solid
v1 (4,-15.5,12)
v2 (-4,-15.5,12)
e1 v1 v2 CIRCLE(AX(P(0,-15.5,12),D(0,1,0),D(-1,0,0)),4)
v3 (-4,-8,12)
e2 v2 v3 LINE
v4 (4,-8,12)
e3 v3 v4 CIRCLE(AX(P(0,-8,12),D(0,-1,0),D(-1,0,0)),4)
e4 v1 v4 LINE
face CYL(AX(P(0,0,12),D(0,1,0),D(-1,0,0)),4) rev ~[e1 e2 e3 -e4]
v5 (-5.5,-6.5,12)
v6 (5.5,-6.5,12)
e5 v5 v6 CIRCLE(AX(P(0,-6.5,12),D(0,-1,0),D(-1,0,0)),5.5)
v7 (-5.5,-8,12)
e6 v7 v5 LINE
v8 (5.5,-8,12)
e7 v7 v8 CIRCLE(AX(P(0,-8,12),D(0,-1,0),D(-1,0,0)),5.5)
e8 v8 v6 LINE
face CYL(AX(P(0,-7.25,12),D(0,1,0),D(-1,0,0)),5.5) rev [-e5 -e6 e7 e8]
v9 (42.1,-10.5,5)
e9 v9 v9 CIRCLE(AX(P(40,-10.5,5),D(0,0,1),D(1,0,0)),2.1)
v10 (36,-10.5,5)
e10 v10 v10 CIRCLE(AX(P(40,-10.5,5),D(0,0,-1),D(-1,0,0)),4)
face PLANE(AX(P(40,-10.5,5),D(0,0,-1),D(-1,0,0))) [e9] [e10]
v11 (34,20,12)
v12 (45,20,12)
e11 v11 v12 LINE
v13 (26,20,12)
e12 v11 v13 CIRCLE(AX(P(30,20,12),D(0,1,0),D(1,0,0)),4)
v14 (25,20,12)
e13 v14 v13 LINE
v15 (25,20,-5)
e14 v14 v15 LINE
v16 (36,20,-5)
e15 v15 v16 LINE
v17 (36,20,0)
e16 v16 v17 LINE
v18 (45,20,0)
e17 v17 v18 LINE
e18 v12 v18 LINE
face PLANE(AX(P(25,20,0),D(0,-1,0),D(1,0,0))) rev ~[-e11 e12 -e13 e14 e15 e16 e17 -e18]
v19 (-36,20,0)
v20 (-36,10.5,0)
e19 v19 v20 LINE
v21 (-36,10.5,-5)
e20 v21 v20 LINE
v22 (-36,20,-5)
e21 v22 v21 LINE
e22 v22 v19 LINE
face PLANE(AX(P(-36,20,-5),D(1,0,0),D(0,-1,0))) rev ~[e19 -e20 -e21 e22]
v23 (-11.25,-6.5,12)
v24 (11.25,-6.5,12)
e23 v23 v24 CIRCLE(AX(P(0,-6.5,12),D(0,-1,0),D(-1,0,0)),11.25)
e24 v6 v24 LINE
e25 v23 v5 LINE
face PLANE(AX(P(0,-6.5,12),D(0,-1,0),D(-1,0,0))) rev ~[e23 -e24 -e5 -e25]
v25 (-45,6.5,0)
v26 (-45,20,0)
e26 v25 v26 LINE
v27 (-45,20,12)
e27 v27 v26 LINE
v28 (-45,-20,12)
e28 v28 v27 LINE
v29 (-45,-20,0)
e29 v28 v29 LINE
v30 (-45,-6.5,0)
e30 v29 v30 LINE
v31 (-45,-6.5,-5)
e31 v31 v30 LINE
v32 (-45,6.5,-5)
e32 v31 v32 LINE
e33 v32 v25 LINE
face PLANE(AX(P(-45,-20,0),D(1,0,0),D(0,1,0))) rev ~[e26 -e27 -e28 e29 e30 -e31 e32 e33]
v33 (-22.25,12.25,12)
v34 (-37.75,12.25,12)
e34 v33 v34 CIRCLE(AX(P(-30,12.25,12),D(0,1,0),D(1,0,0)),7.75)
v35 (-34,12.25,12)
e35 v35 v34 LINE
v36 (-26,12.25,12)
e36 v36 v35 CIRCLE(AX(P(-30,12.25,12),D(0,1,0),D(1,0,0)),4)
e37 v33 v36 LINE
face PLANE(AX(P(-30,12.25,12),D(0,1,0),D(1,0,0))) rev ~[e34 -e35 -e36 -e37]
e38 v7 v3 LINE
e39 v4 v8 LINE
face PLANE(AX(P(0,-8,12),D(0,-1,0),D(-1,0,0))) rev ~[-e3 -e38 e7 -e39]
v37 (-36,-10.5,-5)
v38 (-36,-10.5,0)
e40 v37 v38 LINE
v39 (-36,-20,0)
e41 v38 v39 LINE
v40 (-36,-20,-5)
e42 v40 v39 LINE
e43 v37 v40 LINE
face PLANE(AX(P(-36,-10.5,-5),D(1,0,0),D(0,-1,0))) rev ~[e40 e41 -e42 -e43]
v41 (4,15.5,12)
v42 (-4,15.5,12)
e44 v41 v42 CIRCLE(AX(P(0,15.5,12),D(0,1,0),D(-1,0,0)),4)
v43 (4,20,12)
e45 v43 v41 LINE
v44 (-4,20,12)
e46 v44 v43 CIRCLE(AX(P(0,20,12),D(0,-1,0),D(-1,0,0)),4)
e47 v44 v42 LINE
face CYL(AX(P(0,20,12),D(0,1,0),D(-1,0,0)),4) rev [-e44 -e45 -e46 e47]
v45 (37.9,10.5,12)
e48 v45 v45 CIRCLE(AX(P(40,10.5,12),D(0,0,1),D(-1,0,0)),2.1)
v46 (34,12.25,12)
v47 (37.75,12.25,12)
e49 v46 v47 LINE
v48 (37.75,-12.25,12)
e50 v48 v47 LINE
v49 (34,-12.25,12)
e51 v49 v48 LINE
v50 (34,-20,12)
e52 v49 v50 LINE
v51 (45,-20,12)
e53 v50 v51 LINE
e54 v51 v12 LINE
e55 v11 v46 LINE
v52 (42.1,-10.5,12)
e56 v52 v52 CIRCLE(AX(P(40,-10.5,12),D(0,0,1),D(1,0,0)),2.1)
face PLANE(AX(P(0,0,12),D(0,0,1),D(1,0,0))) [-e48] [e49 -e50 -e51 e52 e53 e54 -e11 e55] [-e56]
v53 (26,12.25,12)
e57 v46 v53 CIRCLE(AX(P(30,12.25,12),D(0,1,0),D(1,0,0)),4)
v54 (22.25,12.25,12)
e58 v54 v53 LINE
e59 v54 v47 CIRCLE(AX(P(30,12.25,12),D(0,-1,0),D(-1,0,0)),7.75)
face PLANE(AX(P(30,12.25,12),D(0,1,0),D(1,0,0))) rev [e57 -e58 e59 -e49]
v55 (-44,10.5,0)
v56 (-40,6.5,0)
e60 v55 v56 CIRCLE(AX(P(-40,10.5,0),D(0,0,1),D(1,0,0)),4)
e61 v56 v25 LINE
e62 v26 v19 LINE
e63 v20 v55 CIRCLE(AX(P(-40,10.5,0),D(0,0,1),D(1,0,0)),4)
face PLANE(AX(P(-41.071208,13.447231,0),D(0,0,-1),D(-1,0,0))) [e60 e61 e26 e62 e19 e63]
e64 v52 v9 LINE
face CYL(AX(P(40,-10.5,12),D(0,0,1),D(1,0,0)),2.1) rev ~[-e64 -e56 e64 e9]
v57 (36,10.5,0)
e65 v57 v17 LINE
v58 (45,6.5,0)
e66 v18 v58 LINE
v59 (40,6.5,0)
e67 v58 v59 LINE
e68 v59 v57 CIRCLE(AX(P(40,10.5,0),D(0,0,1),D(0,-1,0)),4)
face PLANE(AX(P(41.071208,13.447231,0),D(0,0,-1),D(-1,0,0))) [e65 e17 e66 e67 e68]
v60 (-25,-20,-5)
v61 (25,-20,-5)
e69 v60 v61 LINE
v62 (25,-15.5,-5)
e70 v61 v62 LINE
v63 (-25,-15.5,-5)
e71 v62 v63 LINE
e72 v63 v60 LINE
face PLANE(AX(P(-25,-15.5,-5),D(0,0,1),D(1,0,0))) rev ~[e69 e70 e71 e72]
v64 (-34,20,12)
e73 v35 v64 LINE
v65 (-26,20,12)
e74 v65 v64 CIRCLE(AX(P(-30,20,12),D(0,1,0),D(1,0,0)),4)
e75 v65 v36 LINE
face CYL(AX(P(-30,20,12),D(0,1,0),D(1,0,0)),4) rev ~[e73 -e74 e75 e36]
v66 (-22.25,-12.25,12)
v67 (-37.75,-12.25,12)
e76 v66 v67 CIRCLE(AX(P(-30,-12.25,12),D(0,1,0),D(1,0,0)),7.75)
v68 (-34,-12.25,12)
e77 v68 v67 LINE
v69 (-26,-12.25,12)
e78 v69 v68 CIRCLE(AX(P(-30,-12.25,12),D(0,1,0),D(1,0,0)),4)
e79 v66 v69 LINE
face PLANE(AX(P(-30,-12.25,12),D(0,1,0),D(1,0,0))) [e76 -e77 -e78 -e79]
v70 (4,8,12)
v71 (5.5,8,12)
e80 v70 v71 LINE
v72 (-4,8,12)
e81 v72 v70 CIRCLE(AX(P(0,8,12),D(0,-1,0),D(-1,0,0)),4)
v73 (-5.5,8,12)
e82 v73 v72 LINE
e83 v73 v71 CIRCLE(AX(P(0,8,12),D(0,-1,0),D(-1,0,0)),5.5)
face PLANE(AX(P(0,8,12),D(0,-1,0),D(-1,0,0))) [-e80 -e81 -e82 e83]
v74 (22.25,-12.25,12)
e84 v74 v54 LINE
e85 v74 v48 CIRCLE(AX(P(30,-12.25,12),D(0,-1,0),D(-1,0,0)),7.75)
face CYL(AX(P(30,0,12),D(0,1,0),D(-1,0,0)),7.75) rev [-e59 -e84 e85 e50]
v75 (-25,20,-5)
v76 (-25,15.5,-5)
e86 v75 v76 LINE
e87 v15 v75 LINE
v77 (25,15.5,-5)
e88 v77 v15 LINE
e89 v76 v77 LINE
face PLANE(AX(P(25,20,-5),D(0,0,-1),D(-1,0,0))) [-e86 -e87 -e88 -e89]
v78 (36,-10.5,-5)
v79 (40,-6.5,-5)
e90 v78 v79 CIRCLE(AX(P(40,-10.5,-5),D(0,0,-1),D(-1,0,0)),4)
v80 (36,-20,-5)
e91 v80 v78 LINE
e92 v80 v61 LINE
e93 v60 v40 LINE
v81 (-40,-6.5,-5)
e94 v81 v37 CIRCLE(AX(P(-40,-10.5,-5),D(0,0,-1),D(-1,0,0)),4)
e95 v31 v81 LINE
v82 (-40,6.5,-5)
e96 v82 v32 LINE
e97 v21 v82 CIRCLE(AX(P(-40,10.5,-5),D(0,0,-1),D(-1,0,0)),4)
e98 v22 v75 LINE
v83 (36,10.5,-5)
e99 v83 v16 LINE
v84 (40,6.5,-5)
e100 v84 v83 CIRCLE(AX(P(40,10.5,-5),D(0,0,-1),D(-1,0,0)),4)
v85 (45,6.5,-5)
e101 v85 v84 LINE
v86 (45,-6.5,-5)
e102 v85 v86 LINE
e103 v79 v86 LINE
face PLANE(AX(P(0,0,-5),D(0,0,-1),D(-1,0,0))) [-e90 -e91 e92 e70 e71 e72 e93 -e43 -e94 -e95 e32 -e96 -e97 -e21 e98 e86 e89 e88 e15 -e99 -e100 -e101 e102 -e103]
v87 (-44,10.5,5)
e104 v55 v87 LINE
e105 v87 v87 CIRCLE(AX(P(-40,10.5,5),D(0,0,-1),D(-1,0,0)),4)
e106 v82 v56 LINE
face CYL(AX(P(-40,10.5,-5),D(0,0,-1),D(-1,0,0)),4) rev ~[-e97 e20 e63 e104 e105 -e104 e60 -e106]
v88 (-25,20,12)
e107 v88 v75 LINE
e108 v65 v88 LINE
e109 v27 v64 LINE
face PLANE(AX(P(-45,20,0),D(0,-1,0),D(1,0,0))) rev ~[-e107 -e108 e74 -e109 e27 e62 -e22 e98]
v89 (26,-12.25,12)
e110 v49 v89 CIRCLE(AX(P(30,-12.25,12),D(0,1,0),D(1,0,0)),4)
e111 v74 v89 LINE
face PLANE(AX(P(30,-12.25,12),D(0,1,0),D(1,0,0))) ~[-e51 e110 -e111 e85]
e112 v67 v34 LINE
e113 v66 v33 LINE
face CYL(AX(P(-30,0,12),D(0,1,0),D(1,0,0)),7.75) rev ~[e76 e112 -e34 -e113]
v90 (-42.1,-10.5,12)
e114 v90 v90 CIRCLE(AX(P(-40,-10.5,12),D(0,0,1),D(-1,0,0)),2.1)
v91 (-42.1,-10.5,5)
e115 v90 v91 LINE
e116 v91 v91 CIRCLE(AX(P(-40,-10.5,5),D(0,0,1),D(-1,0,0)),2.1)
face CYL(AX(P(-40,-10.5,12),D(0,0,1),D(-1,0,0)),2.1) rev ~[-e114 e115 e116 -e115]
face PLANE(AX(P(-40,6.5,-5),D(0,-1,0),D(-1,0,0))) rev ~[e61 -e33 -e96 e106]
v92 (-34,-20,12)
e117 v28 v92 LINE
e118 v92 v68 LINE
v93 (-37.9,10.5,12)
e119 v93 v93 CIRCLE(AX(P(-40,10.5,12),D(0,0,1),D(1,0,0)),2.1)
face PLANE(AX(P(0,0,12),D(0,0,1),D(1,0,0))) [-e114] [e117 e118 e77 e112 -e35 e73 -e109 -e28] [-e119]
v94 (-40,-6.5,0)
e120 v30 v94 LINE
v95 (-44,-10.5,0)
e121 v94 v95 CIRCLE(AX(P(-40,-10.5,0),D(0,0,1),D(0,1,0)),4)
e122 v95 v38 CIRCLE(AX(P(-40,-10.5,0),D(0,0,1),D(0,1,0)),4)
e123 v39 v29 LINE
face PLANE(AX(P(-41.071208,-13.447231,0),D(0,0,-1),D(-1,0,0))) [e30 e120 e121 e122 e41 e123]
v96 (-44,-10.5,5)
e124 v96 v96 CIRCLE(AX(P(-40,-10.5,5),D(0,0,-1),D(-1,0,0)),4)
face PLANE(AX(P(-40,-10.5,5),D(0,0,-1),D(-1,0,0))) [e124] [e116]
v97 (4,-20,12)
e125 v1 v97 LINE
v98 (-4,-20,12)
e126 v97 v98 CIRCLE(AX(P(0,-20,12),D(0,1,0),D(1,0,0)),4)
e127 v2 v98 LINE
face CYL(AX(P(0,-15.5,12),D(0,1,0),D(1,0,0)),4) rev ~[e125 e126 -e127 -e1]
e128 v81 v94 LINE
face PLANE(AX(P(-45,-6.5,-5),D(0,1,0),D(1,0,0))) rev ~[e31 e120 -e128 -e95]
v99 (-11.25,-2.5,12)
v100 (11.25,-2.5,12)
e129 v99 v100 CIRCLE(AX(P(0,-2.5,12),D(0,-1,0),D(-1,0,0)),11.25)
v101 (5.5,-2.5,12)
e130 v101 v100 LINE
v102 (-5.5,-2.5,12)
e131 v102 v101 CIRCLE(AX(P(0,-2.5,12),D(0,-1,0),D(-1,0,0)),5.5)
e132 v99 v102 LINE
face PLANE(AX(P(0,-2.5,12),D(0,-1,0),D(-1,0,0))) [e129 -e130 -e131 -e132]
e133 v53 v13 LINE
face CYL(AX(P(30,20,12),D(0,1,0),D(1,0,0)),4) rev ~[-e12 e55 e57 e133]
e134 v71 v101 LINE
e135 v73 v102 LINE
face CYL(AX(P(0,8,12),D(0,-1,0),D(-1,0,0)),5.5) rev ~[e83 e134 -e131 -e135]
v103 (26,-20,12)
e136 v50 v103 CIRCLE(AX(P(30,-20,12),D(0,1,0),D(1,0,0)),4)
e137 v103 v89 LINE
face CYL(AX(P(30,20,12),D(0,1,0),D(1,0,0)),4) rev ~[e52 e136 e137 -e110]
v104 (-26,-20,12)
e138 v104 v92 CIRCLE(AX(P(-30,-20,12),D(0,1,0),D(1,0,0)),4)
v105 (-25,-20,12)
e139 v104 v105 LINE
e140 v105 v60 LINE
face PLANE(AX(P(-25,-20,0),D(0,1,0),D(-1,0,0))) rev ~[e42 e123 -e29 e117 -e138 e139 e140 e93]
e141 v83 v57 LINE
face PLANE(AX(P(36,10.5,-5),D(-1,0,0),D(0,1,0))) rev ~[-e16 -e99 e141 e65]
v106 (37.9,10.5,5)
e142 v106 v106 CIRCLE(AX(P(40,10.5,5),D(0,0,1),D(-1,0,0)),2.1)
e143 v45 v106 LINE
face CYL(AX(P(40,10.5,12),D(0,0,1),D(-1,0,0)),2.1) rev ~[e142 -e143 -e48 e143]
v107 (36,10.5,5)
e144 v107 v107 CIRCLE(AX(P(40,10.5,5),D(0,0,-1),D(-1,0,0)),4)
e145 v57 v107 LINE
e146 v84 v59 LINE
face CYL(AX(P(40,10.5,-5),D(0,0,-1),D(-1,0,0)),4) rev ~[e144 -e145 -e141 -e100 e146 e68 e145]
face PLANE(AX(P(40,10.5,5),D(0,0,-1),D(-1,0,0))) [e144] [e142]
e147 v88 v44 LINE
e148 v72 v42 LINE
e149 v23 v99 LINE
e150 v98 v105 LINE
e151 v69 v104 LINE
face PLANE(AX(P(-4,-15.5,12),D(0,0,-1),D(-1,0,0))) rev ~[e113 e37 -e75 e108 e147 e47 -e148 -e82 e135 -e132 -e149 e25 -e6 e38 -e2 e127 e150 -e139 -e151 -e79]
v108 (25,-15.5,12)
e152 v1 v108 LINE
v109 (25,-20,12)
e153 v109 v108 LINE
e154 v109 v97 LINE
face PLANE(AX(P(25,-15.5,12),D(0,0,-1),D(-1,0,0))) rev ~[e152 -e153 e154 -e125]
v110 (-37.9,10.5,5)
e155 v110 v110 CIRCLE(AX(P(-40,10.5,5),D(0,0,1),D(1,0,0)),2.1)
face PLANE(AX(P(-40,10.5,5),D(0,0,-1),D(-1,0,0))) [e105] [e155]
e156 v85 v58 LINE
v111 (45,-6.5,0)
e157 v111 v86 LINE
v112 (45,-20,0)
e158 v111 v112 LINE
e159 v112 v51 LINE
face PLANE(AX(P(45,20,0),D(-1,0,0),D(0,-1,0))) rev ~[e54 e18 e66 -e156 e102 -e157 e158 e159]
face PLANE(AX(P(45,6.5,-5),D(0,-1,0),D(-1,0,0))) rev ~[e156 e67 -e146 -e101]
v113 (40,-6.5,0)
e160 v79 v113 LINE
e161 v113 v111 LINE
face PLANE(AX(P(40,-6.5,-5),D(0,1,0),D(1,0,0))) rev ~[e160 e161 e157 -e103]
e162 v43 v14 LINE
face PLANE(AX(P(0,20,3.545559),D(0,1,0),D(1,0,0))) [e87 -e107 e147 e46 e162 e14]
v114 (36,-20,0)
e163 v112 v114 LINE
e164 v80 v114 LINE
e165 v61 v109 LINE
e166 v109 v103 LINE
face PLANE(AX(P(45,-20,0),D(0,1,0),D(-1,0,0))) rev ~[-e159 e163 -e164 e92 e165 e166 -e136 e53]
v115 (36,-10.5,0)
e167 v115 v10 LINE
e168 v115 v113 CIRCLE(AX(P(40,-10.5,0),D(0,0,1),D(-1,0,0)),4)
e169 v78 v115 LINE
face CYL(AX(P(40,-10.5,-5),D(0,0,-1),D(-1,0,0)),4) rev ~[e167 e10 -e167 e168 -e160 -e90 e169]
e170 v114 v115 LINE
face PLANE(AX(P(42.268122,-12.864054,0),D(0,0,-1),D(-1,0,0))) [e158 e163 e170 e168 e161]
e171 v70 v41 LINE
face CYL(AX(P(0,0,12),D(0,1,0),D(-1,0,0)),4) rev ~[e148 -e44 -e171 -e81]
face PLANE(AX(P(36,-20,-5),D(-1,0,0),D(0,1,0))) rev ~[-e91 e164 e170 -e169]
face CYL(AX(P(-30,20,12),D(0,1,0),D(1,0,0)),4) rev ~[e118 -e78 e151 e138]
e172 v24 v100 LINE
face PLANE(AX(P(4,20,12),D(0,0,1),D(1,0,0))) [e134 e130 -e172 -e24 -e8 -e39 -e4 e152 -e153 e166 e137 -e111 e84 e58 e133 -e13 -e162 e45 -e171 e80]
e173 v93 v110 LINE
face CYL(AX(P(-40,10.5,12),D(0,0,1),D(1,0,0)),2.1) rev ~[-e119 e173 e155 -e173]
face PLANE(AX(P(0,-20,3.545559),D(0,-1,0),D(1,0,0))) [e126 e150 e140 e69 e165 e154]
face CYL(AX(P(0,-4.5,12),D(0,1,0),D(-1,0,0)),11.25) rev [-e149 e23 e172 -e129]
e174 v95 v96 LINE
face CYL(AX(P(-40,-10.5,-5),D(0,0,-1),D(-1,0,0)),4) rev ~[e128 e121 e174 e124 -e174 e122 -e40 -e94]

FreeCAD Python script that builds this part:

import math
import FreeCAD as App
import Part
import Sketcher
Q = App.Units.Quantity


def add_polygon(sketch, points):
    """Adds a closed chain of lines whose ends are joined by coincident constraints."""
    first, n = sketch.GeometryCount, len(points)
    for a, b in zip(points, points[1:] + points[:1]):
        sketch.addGeometry(Part.LineSegment(App.Vector(*a, 0), App.Vector(*b, 0)), False)
    for i in range(n):
        sketch.addConstraint(Sketcher.Constraint("Coincident", first + i, 2, first + (i + 1) % n, 1))

doc = App.newDocument("Part")
body = doc.addObject("PartDesign::Body", "Body")

sketch1 = doc.addObject("Sketcher::SketchObject", "Sketch")
body.addObject(sketch1)
sketch1.AttachmentSupport = (doc.XY_Plane, [""])
sketch1.MapMode = "FlatFace"
add_polygon(sketch1, [(-45, 20), (-45, -20), (45, -20), (45, 20)])
sketch1.addConstraint(Sketcher.Constraint("Vertical", 0))
sketch1.addConstraint(Sketcher.Constraint("Horizontal", 1))
sketch1.addConstraint(Sketcher.Constraint("Vertical", 2))
sketch1.addConstraint(Sketcher.Constraint("Horizontal", 3))
sketch1.addConstraint(Sketcher.Constraint("Symmetric", 0, 2, 2, 2, -1, 1))
sketch1.addConstraint(Sketcher.Constraint("DistanceX", 1, 1, 1, 2, Q("90 mm")))
sketch1.addConstraint(Sketcher.Constraint("DistanceY", 0, 2, 0, 1, Q("40 mm")))
pad1 = doc.addObject("PartDesign::Pad", "Pad")
body.addObject(pad1)
pad1.Profile = sketch1
pad1.Length = 12

sketch2 = doc.addObject("Sketcher::SketchObject", "Sketch001")
body.addObject(sketch2)
sketch2.AttachmentSupport = (doc.XZ_Plane, [""])
sketch2.MapMode = "FlatFace"
sketch2.AttachmentOffset = App.Placement(App.Vector(0, 0, -20), App.Rotation())
sketch2.addGeometry(Part.Circle(App.Vector(-30, 12, 0), App.Vector(0, 0, 1), 4), False)
sketch2.addGeometry(Part.Circle(App.Vector(30, 12, 0), App.Vector(0, 0, 1), 4), False)
sketch2.addConstraint(Sketcher.Constraint("Equal", 0, 1))
sketch2.addConstraint(Sketcher.Constraint("Symmetric", 0, 3, 1, 3, -2))
sketch2.addConstraint(Sketcher.Constraint("Diameter", 0, Q("8 mm")))
sketch2.addConstraint(Sketcher.Constraint("DistanceX", 0, 3, -1, 1, Q("30 mm")))
sketch2.addConstraint(Sketcher.Constraint("DistanceY", -1, 1, 0, 3, Q("12 mm")))
pocket1 = doc.addObject("PartDesign::Pocket", "Pocket")
body.addObject(pocket1)
pocket1.Profile = sketch2
pocket1.Type = "ThroughAll"
pocket1.Reversed = True

sketch3 = doc.addObject("Sketcher::SketchObject", "Sketch002")
body.addObject(sketch3)
sketch3.AttachmentSupport = (doc.XZ_Plane, [""])
sketch3.MapMode = "FlatFace"
sketch3.addGeometry(Part.Circle(App.Vector(-30, 12, 0), App.Vector(0, 0, 1), 7.75), False)
sketch3.addConstraint(Sketcher.Constraint("Diameter", 0, Q("15.5 mm")))
sketch3.addConstraint(Sketcher.Constraint("DistanceX", 0, 3, -1, 1, Q("30 mm")))
sketch3.addConstraint(Sketcher.Constraint("DistanceY", -1, 1, 0, 3, Q("12 mm")))
pocket2 = doc.addObject("PartDesign::Pocket", "Pocket001")
body.addObject(pocket2)
pocket2.Profile = sketch3
pocket2.Length = 24.5
pocket2.Midplane = True

sketch4 = doc.addObject("Sketcher::SketchObject", "Sketch003")
body.addObject(sketch4)
sketch4.AttachmentSupport = (doc.XY_Plane, [""])
sketch4.MapMode = "FlatFace"
sketch4.AttachmentOffset = App.Placement(App.Vector(0, 0, 12), App.Rotation())
add_polygon(sketch4, [(-25, -15.5), (-25, -30.228129), (25, -30.228129), (25, -15.5)])
add_polygon(sketch4, [(-25, 26.100162), (-25, 15.5), (25, 15.5), (25, 26.100162)])
sketch4.addConstraint(Sketcher.Constraint("Vertical", 0))
sketch4.addConstraint(Sketcher.Constraint("Horizontal", 1))
sketch4.addConstraint(Sketcher.Constraint("Vertical", 2))
sketch4.addConstraint(Sketcher.Constraint("Horizontal", 3))
sketch4.addConstraint(Sketcher.Constraint("Vertical", 4))
sketch4.addConstraint(Sketcher.Constraint("Horizontal", 5))
sketch4.addConstraint(Sketcher.Constraint("Vertical", 6))
sketch4.addConstraint(Sketcher.Constraint("Horizontal", 7))
sketch4.addConstraint(Sketcher.Constraint("Symmetric", 2, 2, 4, 2, -1, 1))
sketch4.addConstraint(Sketcher.Constraint("Vertical", 3, 2, 4, 2))
sketch4.addConstraint(Sketcher.Constraint("Vertical", 2, 2, 5, 2))
sketch4.addConstraint(Sketcher.Constraint("DistanceX", 1, 1, 1, 2, Q("50 mm")))
sketch4.addConstraint(Sketcher.Constraint("DistanceY", 3, 2, 4, 2, Q("31 mm")))
sketch4.addConstraint(Sketcher.Constraint("DistanceY", 0, 2, 0, 1, Q("14.728129 mm")))
sketch4.addConstraint(Sketcher.Constraint("DistanceY", 4, 2, 4, 1, Q("10.600162 mm")))
pocket3 = doc.addObject("PartDesign::Pocket", "Pocket002")
body.addObject(pocket3)
pocket3.Profile = sketch4
pocket3.Length = 31

sketch5 = doc.addObject("Sketcher::SketchObject", "Sketch004")
body.addObject(sketch5)
sketch5.AttachmentSupport = (doc.XY_Plane, [""])
sketch5.MapMode = "FlatFace"
add_polygon(sketch5, [(25, -15.5), (-25, -15.5), (-25, -20), (-45, -20), (-45, 20), (-25, 20), (-25, 15.5), (25, 15.5), (25, 20), (45, 20), (45, -20), (25, -20)])
sketch5.addConstraint(Sketcher.Constraint("Horizontal", 0))
sketch5.addConstraint(Sketcher.Constraint("Vertical", 1))
sketch5.addConstraint(Sketcher.Constraint("Horizontal", 2))
sketch5.addConstraint(Sketcher.Constraint("Vertical", 3))
sketch5.addConstraint(Sketcher.Constraint("Horizontal", 4))
sketch5.addConstraint(Sketcher.Constraint("Vertical", 5))
sketch5.addConstraint(Sketcher.Constraint("Horizontal", 6))
sketch5.addConstraint(Sketcher.Constraint("Vertical", 7))
sketch5.addConstraint(Sketcher.Constraint("Horizontal", 8))
sketch5.addConstraint(Sketcher.Constraint("Vertical", 9))
sketch5.addConstraint(Sketcher.Constraint("Horizontal", 10))
sketch5.addConstraint(Sketcher.Constraint("Vertical", 11))
sketch5.addConstraint(Sketcher.Constraint("Symmetric", 0, 2, 6, 2, -1, 1))
sketch5.addConstraint(Sketcher.Constraint("Symmetric", 2, 2, 8, 2, -1, 1))
sketch5.addConstraint(Sketcher.Constraint("Symmetric", 4, 2, 10, 2, -1, 1))
sketch5.addConstraint(Sketcher.Constraint("Symmetric", 4, 2, 7, 2, -2))
sketch5.addConstraint(Sketcher.Constraint("DistanceX", 0, 2, 0, 1, Q("50 mm")))
sketch5.addConstraint(Sketcher.Constraint("DistanceX", 2, 2, 2, 1, Q("20 mm")))
sketch5.addConstraint(Sketcher.Constraint("DistanceY", 3, 1, 3, 2, Q("40 mm")))
sketch5.addConstraint(Sketcher.Constraint("DistanceY", 1, 2, 1, 1, Q("4.5 mm")))
pad2 = doc.addObject("PartDesign::Pad", "Pad001")
body.addObject(pad2)
pad2.Profile = sketch5
pad2.Length = 5
pad2.Reversed = True

sketch6 = doc.addObject("Sketcher::SketchObject", "Sketch005")
body.addObject(sketch6)
sketch6.AttachmentSupport = (doc.XY_Plane, [""])
sketch6.MapMode = "FlatFace"
sketch6.AttachmentOffset = App.Placement(App.Vector(0, 0, 12), App.Rotation())
sketch6.addGeometry(Part.Circle(App.Vector(-40, 10.5, 0), App.Vector(0, 0, 1), 2.1), False)
sketch6.addGeometry(Part.Circle(App.Vector(40, 10.5, 0), App.Vector(0, 0, 1), 2.1), False)
sketch6.addGeometry(Part.Circle(App.Vector(40, -10.5, 0), App.Vector(0, 0, 1), 2.1), False)
sketch6.addGeometry(Part.Circle(App.Vector(-40, -10.5, 0), App.Vector(0, 0, 1), 2.1), False)
sketch6.addConstraint(Sketcher.Constraint("Equal", 0, 1))
sketch6.addConstraint(Sketcher.Constraint("Equal", 1, 2))
sketch6.addConstraint(Sketcher.Constraint("Equal", 2, 3))
sketch6.addConstraint(Sketcher.Constraint("Symmetric", 0, 3, 2, 3, -1, 1))
sketch6.addConstraint(Sketcher.Constraint("Symmetric", 1, 3, 3, 3, -1, 1))
sketch6.addConstraint(Sketcher.Constraint("Symmetric", 0, 3, 1, 3, -2))
sketch6.addConstraint(Sketcher.Constraint("Diameter", 0, Q("4.2 mm")))
sketch6.addConstraint(Sketcher.Constraint("DistanceX", 0, 3, -1, 1, Q("40 mm")))
sketch6.addConstraint(Sketcher.Constraint("DistanceY", 2, 3, 1, 3, Q("21 mm")))
pocket4 = doc.addObject("PartDesign::Pocket", "Pocket003")
body.addObject(pocket4)
pocket4.Profile = sketch6
pocket4.Type = "ThroughAll"

sketch7 = doc.addObject("Sketcher::SketchObject", "Sketch006")
body.addObject(sketch7)
sketch7.AttachmentSupport = (doc.XY_Plane, [""])
sketch7.MapMode = "FlatFace"
sketch7.AttachmentOffset = App.Placement(App.Vector(0, 0, -5), App.Rotation())
sketch7.addGeometry(Part.Circle(App.Vector(40, 10.5, 0), App.Vector(0, 0, 1), 4), False)
sketch7.addGeometry(Part.Circle(App.Vector(-40, 10.5, 0), App.Vector(0, 0, 1), 4), False)
sketch7.addGeometry(Part.Circle(App.Vector(-40, -10.5, 0), App.Vector(0, 0, 1), 4), False)
sketch7.addGeometry(Part.Circle(App.Vector(40, -10.5, 0), App.Vector(0, 0, 1), 4), False)
sketch7.addConstraint(Sketcher.Constraint("Equal", 0, 1))
sketch7.addConstraint(Sketcher.Constraint("Equal", 1, 2))
sketch7.addConstraint(Sketcher.Constraint("Equal", 2, 3))
sketch7.addConstraint(Sketcher.Constraint("Symmetric", 0, 3, 2, 3, -1, 1))
sketch7.addConstraint(Sketcher.Constraint("Symmetric", 1, 3, 3, 3, -1, 1))
sketch7.addConstraint(Sketcher.Constraint("Symmetric", 0, 3, 1, 3, -2))
sketch7.addConstraint(Sketcher.Constraint("Diameter", 0, Q("8 mm")))
sketch7.addConstraint(Sketcher.Constraint("DistanceX", -1, 1, 0, 3, Q("40 mm")))
sketch7.addConstraint(Sketcher.Constraint("DistanceY", 2, 3, 1, 3, Q("21 mm")))
pocket5 = doc.addObject("PartDesign::Pocket", "Pocket004")
body.addObject(pocket5)
pocket5.Profile = sketch7
pocket5.Length = 10
pocket5.Reversed = True

sketch8 = doc.addObject("Sketcher::SketchObject", "Sketch007")
body.addObject(sketch8)
sketch8.AttachmentSupport = (doc.XY_Plane, [""])
sketch8.MapMode = "FlatFace"
sketch8.AttachmentOffset = App.Placement(App.Vector(0, 0, -5), App.Rotation())
sketch8.addGeometry(Part.LineSegment(App.Vector(36, 10.5, 0), App.Vector(36, 20, 0)), False)
sketch8.addGeometry(Part.LineSegment(App.Vector(36, 20, 0), App.Vector(45, 20, 0)), False)
sketch8.addGeometry(Part.LineSegment(App.Vector(45, 20, 0), App.Vector(45, 6.5, 0)), False)
sketch8.addGeometry(Part.LineSegment(App.Vector(45, 6.5, 0), App.Vector(40, 6.5, 0)), False)
sketch8.addGeometry(Part.ArcOfCircle(Part.Circle(App.Vector(40, 10.5, 0), App.Vector(0, 0, 1), 4), math.radians(-90), math.radians(180)), False)
sketch8.addGeometry(Part.LineSegment(App.Vector(40, -6.5, 0), App.Vector(50, -6.5, 0)), False)
sketch8.addGeometry(Part.LineSegment(App.Vector(50, -6.5, 0), App.Vector(45, -20, 0)), False)
sketch8.addGeometry(Part.LineSegment(App.Vector(45, -20, 0), App.Vector(36, -20, 0)), False)
sketch8.addGeometry(Part.LineSegment(App.Vector(36, -20, 0), App.Vector(36, -10.5, 0)), False)
sketch8.addGeometry(Part.ArcOfCircle(Part.Circle(App.Vector(40, -10.5, 0), App.Vector(0, 0, 1), 4), math.radians(180), math.radians(450)), False)
sketch8.addGeometry(Part.LineSegment(App.Vector(-45, -20, 0), App.Vector(-45, -6.5, 0)), False)
sketch8.addGeometry(Part.LineSegment(App.Vector(-45, -6.5, 0), App.Vector(-40, -6.5, 0)), False)
sketch8.addGeometry(Part.ArcOfCircle(Part.Circle(App.Vector(-40, -10.5, 0), App.Vector(0, 0, 1), 4), math.radians(90), math.radians(360)), False)
sketch8.addGeometry(Part.LineSegment(App.Vector(-36, -10.5, 0), App.Vector(-36, -20, 0)), False)
sketch8.addGeometry(Part.LineSegment(App.Vector(-36, -20, 0), App.Vector(-45, -20, 0)), False)
sketch8.addGeometry(Part.LineSegment(App.Vector(-40, 6.5, 0), App.Vector(-45, 6.5, 0)), False)
sketch8.addGeometry(Part.LineSegment(App.Vector(-45, 6.5, 0), App.Vector(-45, 20, 0)), False)
sketch8.addGeometry(Part.LineSegment(App.Vector(-45, 20, 0), App.Vector(-36, 20, 0)), False)
sketch8.addGeometry(Part.LineSegment(App.Vector(-36, 20, 0), App.Vector(-36, 10.5, 0)), False)
sketch8.addGeometry(Part.ArcOfCircle(Part.Circle(App.Vector(-40, 10.5, 0), App.Vector(0, 0, 1), 4), math.radians(0), math.radians(270)), False)
sketch8.addConstraint(Sketcher.Constraint("Coincident", 0, 2, 1, 1))
sketch8.addConstraint(Sketcher.Constraint("Coincident", 1, 2, 2, 1))
sketch8.addConstraint(Sketcher.Constraint("Coincident", 2, 2, 3, 1))
sketch8.addConstraint(Sketcher.Constraint("Tangent", 3, 2, 4, 1))
sketch8.addConstraint(Sketcher.Constraint("Tangent", 4, 2, 0, 1))
sketch8.addConstraint(Sketcher.Constraint("Coincident", 5, 2, 6, 1))
sketch8.addConstraint(Sketcher.Constraint("Coincident", 6, 2, 7, 1))
sketch8.addConstraint(Sketcher.Constraint("Coincident", 7, 2, 8, 1))
sketch8.addConstraint(Sketcher.Constraint("Tangent", 8, 2, 9, 1))
sketch8.addConstraint(Sketcher.Constraint("Tangent", 9, 2, 5, 1))
sketch8.addConstraint(Sketcher.Constraint("Coincident", 10, 2, 11, 1))
sketch8.addConstraint(Sketcher.Constraint("Tangent", 11, 2, 12, 1))
sketch8.addConstraint(Sketcher.Constraint("Tangent", 12, 2, 13, 1))
sketch8.addConstraint(Sketcher.Constraint("Coincident", 13, 2, 14, 1))
sketch8.addConstraint(Sketcher.Constraint("Coincident", 14, 2, 10, 1))
sketch8.addConstraint(Sketcher.Constraint("Coincident", 15, 2, 16, 1))
sketch8.addConstraint(Sketcher.Constraint("Coincident", 16, 2, 17, 1))
sketch8.addConstraint(Sketcher.Constraint("Coincident", 17, 2, 18, 1))
sketch8.addConstraint(Sketcher.Constraint("Tangent", 18, 2, 19, 1))
sketch8.addConstraint(Sketcher.Constraint("Tangent", 19, 2, 15, 1))
sketch8.addConstraint(Sketcher.Constraint("Vertical", 0))
sketch8.addConstraint(Sketcher.Constraint("Horizontal", 1))
sketch8.addConstraint(Sketcher.Constraint("Vertical", 2))
sketch8.addConstraint(Sketcher.Constraint("Horizontal", 3))
sketch8.addConstraint(Sketcher.Constraint("Horizontal", 5))
sketch8.addConstraint(Sketcher.Constraint("Horizontal", 7))
sketch8.addConstraint(Sketcher.Constraint("Vertical", 8))
sketch8.addConstraint(Sketcher.Constraint("Vertical", 10))
sketch8.addConstraint(Sketcher.Constraint("Horizontal", 11))
sketch8.addConstraint(Sketcher.Constraint("Vertical", 13))
sketch8.addConstraint(Sketcher.Constraint("Horizontal", 14))
sketch8.addConstraint(Sketcher.Constraint("Horizontal", 15))
sketch8.addConstraint(Sketcher.Constraint("Vertical", 16))
sketch8.addConstraint(Sketcher.Constraint("Horizontal", 17))
sketch8.addConstraint(Sketcher.Constraint("Vertical", 18))
sketch8.addConstraint(Sketcher.Constraint("Equal", 4, 9))
sketch8.addConstraint(Sketcher.Constraint("Equal", 9, 12))
sketch8.addConstraint(Sketcher.Constraint("Equal", 12, 19))
sketch8.addConstraint(Sketcher.Constraint("Symmetric", 4, 3, 12, 3, -1, 1))
sketch8.addConstraint(Sketcher.Constraint("Symmetric", 9, 3, 19, 3, -1, 1))
sketch8.addConstraint(Sketcher.Constraint("Symmetric", 1, 2, 14, 2, -1, 1))
sketch8.addConstraint(Sketcher.Constraint("Symmetric", 6, 2, 16, 2, -1, 1))
sketch8.addConstraint(Sketcher.Constraint("Symmetric", 9, 3, 12, 3, -2))
sketch8.addConstraint(Sketcher.Constraint("Symmetric", 6, 2, 14, 2, -2))
sketch8.addConstraint(Sketcher.Constraint("Radius", 4, Q("4 mm")))
sketch8.addConstraint(Sketcher.Constraint("DistanceX", 1, 1, 1, 2, Q("9 mm")))
sketch8.addConstraint(Sketcher.Constraint("DistanceX", 5, 1, 5, 2, Q("10 mm")))
sketch8.addConstraint(Sketcher.Constraint("DistanceY", 0, 1, 0, 2, Q("9.5 mm")))
sketch8.addConstraint(Sketcher.Constraint("DistanceX", -1, 1, 4, 3, Q("40 mm")))
sketch8.addConstraint(Sketcher.Constraint("DistanceY", -1, 1, 0, 2, Q("20 mm")))
pocket6 = doc.addObject("PartDesign::Pocket", "Pocket005")
body.addObject(pocket6)
pocket6.Profile = sketch8
pocket6.Length = 5
pocket6.Reversed = True
doc.recompute()

mirrored = doc.addObject("PartDesign::Mirrored", "Mirrored")
body.addObject(mirrored)
mirrored.Originals = [pocket2]
mirrored.MirrorPlane = (doc.YZ_Plane, [""])
body.Tip = mirrored

sketch9 = doc.addObject("Sketcher::SketchObject", "Sketch008")
body.addObject(sketch9)
sketch9.AttachmentSupport = (doc.XY_Plane, [""])
sketch9.MapMode = "FlatFace"
sketch9.AttachmentOffset = App.Placement(App.Vector(0, 0, 12), App.Rotation())
add_polygon(sketch9, [(-4, 15.5), (-4, -15.5), (0, -15.5), (0, 15.5)])
sketch9.addConstraint(Sketcher.Constraint("Vertical", 0))
sketch9.addConstraint(Sketcher.Constraint("Horizontal", 1))
sketch9.addConstraint(Sketcher.Constraint("Vertical", 2))
sketch9.addConstraint(Sketcher.Constraint("Horizontal", 3))
sketch9.addConstraint(Sketcher.Constraint("Symmetric", 1, 2, 2, 2, -1, 1))
sketch9.addConstraint(Sketcher.Constraint("DistanceX", 1, 1, 1, 2, Q("4 mm")))
sketch9.addConstraint(Sketcher.Constraint("DistanceY", 0, 2, 0, 1, Q("31 mm")))
groove = doc.addObject("PartDesign::Groove", "Groove")
body.addObject(groove)
groove.Profile = sketch9
groove.ReferenceAxis = (sketch9, ["V_Axis"])
groove.Angle = 360

sketch10 = doc.addObject("Sketcher::SketchObject", "Sketch009")
body.addObject(sketch10)
sketch10.AttachmentSupport = (doc.XY_Plane, [""])
sketch10.MapMode = "FlatFace"
sketch10.AttachmentOffset = App.Placement(App.Vector(0, 0, 12), App.Rotation())
add_polygon(sketch10, [(-5.5, 8), (-5.5, -2.5), (-11.25, -2.5), (-11.25, -6.5), (-5.5, -6.5), (-5.5, -8), (-4, -8), (-4, 8)])
sketch10.addConstraint(Sketcher.Constraint("Vertical", 0))
sketch10.addConstraint(Sketcher.Constraint("Horizontal", 1))
sketch10.addConstraint(Sketcher.Constraint("Vertical", 2))
sketch10.addConstraint(Sketcher.Constraint("Horizontal", 3))
sketch10.addConstraint(Sketcher.Constraint("Vertical", 4))
sketch10.addConstraint(Sketcher.Constraint("Horizontal", 5))
sketch10.addConstraint(Sketcher.Constraint("Vertical", 6))
sketch10.addConstraint(Sketcher.Constraint("Horizontal", 7))
sketch10.addConstraint(Sketcher.Constraint("Symmetric", 4, 2, 7, 2, -1))
sketch10.addConstraint(Sketcher.Constraint("Equal", 7, 4))
sketch10.addConstraint(Sketcher.Constraint("DistanceY", 2, 2, 2, 1, Q("4 mm")))
sketch10.addConstraint(Sketcher.Constraint("DistanceY", 6, 1, 6, 2, Q("16 mm")))
sketch10.addConstraint(Sketcher.Constraint("DistanceX", 5, 1, 5, 2, Q("1.5 mm")))
sketch10.addConstraint(Sketcher.Constraint("DistanceX", 5, 2, -1, 1, Q("4 mm")))
sketch10.addConstraint(Sketcher.Constraint("DistanceX", 1, 2, 1, 1, Q("5.75 mm")))
groove2 = doc.addObject("PartDesign::Groove", "Groove001")
body.addObject(groove2)
groove2.Profile = sketch10
groove2.ReferenceAxis = (sketch10, ["V_Axis"])
groove2.Angle = 360

sketch11 = doc.addObject("Sketcher::SketchObject", "Sketch010")
body.addObject(sketch11)
sketch11.AttachmentSupport = (doc.XZ_Plane, [""])
sketch11.MapMode = "FlatFace"
sketch11.AttachmentOffset = App.Placement(App.Vector(0, 0, -20), App.Rotation())
sketch11.addGeometry(Part.LineSegment(App.Vector(4, 12, 0), App.Vector(25, 12, 0)), False)
sketch11.addGeometry(Part.LineSegment(App.Vector(25, 12, 0), App.Vector(25, -5, 0)), False)
sketch11.addGeometry(Part.LineSegment(App.Vector(25, -5, 0), App.Vector(-25, -5, 0)), False)
sketch11.addGeometry(Part.LineSegment(App.Vector(-25, -5, 0), App.Vector(-25, 12, 0)), False)
sketch11.addGeometry(Part.LineSegment(App.Vector(-25, 12, 0), App.Vector(-4, 12, 0)), False)
sketch11.addGeometry(Part.ArcOfCircle(Part.Circle(App.Vector(0, 12, 0), App.Vector(0, 0, 1), 4), math.radians(180), math.radians(360)), False)
sketch11.addConstraint(Sketcher.Constraint("Coincident", 0, 2, 1, 1))
sketch11.addConstraint(Sketcher.Constraint("Coincident", 1, 2, 2, 1))
sketch11.addConstraint(Sketcher.Constraint("Coincident", 2, 2, 3, 1))
sketch11.addConstraint(Sketcher.Constraint("Coincident", 3, 2, 4, 1))
sketch11.addConstraint(Sketcher.Constraint("Coincident", 4, 2, 5, 1))
sketch11.addConstraint(Sketcher.Constraint("Coincident", 5, 2, 0, 1))
sketch11.addConstraint(Sketcher.Constraint("Horizontal", 0))
sketch11.addConstraint(Sketcher.Constraint("Vertical", 1))
sketch11.addConstraint(Sketcher.Constraint("Horizontal", 2))
sketch11.addConstraint(Sketcher.Constraint("Vertical", 3))
sketch11.addConstraint(Sketcher.Constraint("Horizontal", 4))
sketch11.addConstraint(Sketcher.Constraint("Symmetric", 0, 2, 3, 2, -2))
sketch11.addConstraint(Sketcher.Constraint("PointOnObject", 5, 3, -2))
sketch11.addConstraint(Sketcher.Constraint("Horizontal", 5, 3, 0, 2))
sketch11.addConstraint(Sketcher.Constraint("Radius", 5, Q("4 mm")))
sketch11.addConstraint(Sketcher.Constraint("DistanceX", 0, 1, 0, 2, Q("21 mm")))
sketch11.addConstraint(Sketcher.Constraint("DistanceY", 1, 2, 1, 1, Q("17 mm")))
sketch11.addConstraint(Sketcher.Constraint("DistanceY", -1, 1, 5, 3, Q("12 mm")))
pad3 = doc.addObject("PartDesign::Pad", "Pad002")
body.addObject(pad3)
pad3.Profile = sketch11
pad3.Length = 4.5

sketch12 = doc.addObject("Sketcher::SketchObject", "Sketch011")
body.addObject(sketch12)
sketch12.AttachmentSupport = (doc.XZ_Plane, [""])
sketch12.MapMode = "FlatFace"
sketch12.AttachmentOffset = App.Placement(App.Vector(0, 0, 15.5), App.Rotation())
sketch12.addGeometry(Part.LineSegment(App.Vector(-4, 12, 0), App.Vector(-25, 12, 0)), False)
sketch12.addGeometry(Part.LineSegment(App.Vector(-25, 12, 0), App.Vector(-25, -5, 0)), False)
sketch12.addGeometry(Part.LineSegment(App.Vector(-25, -5, 0), App.Vector(25, -5, 0)), False)
sketch12.addGeometry(Part.LineSegment(App.Vector(25, -5, 0), App.Vector(25, 12, 0)), False)
sketch12.addGeometry(Part.LineSegment(App.Vector(25, 12, 0), App.Vector(4, 12, 0)), False)
sketch12.addGeometry(Part.ArcOfCircle(Part.Circle(App.Vector(0, 12, 0), App.Vector(0, 0, 1), 4), math.radians(180), math.radians(360)), False)
sketch12.addConstraint(Sketcher.Constraint("Coincident", 0, 2, 1, 1))
sketch12.addConstraint(Sketcher.Constraint("Coincident", 1, 2, 2, 1))
sketch12.addConstraint(Sketcher.Constraint("Coincident", 2, 2, 3, 1))
sketch12.addConstraint(Sketcher.Constraint("Coincident", 3, 2, 4, 1))
sketch12.addConstraint(Sketcher.Constraint("Coincident", 4, 2, 5, 2))
sketch12.addConstraint(Sketcher.Constraint("Coincident", 5, 1, 0, 1))
sketch12.addConstraint(Sketcher.Constraint("Horizontal", 0))
sketch12.addConstraint(Sketcher.Constraint("Vertical", 1))
sketch12.addConstraint(Sketcher.Constraint("Horizontal", 2))
sketch12.addConstraint(Sketcher.Constraint("Vertical", 3))
sketch12.addConstraint(Sketcher.Constraint("Horizontal", 4))
sketch12.addConstraint(Sketcher.Constraint("Symmetric", 0, 2, 3, 2, -2))
sketch12.addConstraint(Sketcher.Constraint("PointOnObject", 5, 3, -2))
sketch12.addConstraint(Sketcher.Constraint("Horizontal", 5, 3, 0, 2))
sketch12.addConstraint(Sketcher.Constraint("Radius", 5, Q("4 mm")))
sketch12.addConstraint(Sketcher.Constraint("DistanceX", 0, 2, 0, 1, Q("21 mm")))
sketch12.addConstraint(Sketcher.Constraint("DistanceY", 1, 2, 1, 1, Q("17 mm")))
sketch12.addConstraint(Sketcher.Constraint("DistanceY", -1, 1, 5, 3, Q("12 mm")))
pad4 = doc.addObject("PartDesign::Pad", "Pad003")
body.addObject(pad4)
pad4.Profile = sketch12
pad4.Length = 4.5

doc.recompute()
